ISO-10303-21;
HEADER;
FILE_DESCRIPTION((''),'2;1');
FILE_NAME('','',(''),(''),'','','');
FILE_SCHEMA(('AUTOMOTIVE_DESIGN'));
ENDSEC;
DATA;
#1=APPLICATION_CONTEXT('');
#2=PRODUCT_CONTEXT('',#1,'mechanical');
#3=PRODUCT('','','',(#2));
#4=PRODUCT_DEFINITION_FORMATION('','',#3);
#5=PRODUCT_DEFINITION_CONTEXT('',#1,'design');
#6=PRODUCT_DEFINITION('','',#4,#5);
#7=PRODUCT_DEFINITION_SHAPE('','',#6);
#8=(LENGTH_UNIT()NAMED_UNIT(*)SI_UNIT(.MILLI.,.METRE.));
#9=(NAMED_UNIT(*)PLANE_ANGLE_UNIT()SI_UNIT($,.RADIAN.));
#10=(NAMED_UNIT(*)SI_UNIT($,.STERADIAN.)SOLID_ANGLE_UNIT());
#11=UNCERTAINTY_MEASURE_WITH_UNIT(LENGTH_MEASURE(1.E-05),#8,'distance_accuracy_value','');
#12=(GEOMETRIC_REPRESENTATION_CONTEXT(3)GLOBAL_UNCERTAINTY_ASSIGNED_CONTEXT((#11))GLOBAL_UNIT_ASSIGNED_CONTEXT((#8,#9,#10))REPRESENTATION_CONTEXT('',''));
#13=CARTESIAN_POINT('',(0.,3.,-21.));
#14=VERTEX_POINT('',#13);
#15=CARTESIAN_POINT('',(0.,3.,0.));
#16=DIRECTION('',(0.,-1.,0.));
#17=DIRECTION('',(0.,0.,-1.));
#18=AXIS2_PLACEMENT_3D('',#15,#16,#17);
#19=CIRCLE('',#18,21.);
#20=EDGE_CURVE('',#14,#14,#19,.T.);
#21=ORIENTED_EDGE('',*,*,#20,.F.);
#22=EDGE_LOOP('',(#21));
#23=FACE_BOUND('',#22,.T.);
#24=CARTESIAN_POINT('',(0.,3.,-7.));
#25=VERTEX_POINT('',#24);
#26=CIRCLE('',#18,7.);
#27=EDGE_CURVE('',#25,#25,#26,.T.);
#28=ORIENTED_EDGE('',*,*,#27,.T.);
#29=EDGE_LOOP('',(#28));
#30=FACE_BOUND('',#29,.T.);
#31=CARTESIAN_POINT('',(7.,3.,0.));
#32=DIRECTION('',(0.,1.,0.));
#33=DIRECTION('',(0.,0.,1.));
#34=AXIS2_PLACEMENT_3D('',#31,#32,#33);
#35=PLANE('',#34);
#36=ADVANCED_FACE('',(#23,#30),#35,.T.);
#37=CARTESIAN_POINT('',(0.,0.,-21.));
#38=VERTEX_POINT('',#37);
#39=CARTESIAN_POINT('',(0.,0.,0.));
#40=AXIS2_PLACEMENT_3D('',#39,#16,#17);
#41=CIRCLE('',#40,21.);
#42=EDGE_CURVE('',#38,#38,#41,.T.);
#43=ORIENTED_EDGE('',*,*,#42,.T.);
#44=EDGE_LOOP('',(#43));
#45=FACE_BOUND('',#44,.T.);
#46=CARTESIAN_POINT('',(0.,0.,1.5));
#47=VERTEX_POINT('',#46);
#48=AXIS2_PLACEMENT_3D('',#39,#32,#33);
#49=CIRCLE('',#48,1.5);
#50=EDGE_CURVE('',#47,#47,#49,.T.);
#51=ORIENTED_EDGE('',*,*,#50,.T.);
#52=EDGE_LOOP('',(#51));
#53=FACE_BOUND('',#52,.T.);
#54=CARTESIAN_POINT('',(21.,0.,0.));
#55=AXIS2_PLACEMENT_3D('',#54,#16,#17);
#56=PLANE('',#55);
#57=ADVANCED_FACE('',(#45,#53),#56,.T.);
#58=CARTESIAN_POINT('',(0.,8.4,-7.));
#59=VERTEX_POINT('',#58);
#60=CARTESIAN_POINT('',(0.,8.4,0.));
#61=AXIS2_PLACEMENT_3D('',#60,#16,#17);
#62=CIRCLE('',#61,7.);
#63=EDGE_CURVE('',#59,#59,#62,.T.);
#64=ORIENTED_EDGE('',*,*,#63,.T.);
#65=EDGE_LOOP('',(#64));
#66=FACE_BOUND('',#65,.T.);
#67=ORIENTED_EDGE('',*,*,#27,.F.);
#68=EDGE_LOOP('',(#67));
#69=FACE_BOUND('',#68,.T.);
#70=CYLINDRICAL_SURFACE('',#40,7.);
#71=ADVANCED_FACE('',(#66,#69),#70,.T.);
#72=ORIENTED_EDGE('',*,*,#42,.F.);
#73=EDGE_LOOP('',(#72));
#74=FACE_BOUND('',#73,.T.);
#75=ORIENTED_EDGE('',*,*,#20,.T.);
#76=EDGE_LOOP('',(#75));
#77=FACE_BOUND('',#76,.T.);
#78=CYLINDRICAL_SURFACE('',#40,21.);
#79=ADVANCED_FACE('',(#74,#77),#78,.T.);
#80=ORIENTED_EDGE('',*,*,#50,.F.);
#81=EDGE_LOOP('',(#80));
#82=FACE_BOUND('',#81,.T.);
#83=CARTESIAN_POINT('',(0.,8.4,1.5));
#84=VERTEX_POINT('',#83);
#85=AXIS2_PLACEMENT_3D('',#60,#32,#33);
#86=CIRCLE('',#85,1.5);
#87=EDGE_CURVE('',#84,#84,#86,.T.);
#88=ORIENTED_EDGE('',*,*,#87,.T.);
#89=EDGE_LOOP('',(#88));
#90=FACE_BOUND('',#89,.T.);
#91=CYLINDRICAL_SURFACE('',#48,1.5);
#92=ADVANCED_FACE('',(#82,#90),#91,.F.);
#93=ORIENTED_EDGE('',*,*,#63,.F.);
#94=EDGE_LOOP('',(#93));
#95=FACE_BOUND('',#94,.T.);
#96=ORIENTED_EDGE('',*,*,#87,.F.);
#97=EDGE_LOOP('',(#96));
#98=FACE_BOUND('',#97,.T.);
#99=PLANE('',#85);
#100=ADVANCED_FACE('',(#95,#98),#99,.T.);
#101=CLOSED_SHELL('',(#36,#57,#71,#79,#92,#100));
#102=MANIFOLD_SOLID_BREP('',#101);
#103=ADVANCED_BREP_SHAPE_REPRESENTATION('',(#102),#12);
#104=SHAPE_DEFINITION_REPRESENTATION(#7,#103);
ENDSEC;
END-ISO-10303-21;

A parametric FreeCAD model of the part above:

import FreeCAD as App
import Part
import Sketcher
Q = App.Units.Quantity

doc = App.newDocument("Part")
params = doc.addObject("Spreadsheet::Sheet", "Params")
for row, (alias, value) in enumerate([
    ("sketch1_width", "21 mm"),
    ("sketch1_width2", "14 mm"),
    ("sketch1_height", "3 mm"),
    ("sketch1_height2", "8.4 mm"),
    ("revolution_angle", "360 deg"),
    ("sketch2_diameter", "3 mm"),
], start=1):
    params.set(f"A{row}", alias)
    params.set(f"B{row}", "=" + value)
    params.setAlias(f"B{row}", alias)

body = doc.addObject("PartDesign::Body", "Body")

sketch1 = doc.addObject("Sketcher::SketchObject", "Sketch")
body.addObject(sketch1)
sketch1.AttachmentSupport = (doc.XY_Plane, [""])
sketch1.MapMode = "FlatFace"
sketch1.addGeometry(Part.LineSegment(App.Vector(0, 8.4, 0), App.Vector(0, 0, 0)), False)
sketch1.addGeometry(Part.LineSegment(App.Vector(0, 0, 0), App.Vector(21, 0, 0)), False)
sketch1.addGeometry(Part.LineSegment(App.Vector(21, 0, 0), App.Vector(21, 3, 0)), False)
sketch1.addGeometry(Part.LineSegment(App.Vector(21, 3, 0), App.Vector(7, 3, 0)), False)
sketch1.addGeometry(Part.LineSegment(App.Vector(7, 3, 0), App.Vector(7, 8.4, 0)), False)
sketch1.addGeometry(Part.LineSegment(App.Vector(7, 8.4, 0), App.Vector(0, 8.4, 0)), False)
sketch1.addConstraint(Sketcher.Constraint("Coincident", 0, 2, 1, 1))
sketch1.addConstraint(Sketcher.Constraint("Coincident", 1, 2, 2, 1))
sketch1.addConstraint(Sketcher.Constraint("Coincident", 2, 2, 3, 1))
sketch1.addConstraint(Sketcher.Constraint("Coincident", 3, 2, 4, 1))
sketch1.addConstraint(Sketcher.Constraint("Coincident", 4, 2, 5, 1))
sketch1.addConstraint(Sketcher.Constraint("Coincident", 5, 2, 0, 1))
sketch1.addConstraint(Sketcher.Constraint("Vertical", 0))
sketch1.addConstraint(Sketcher.Constraint("Horizontal", 1))
sketch1.addConstraint(Sketcher.Constraint("Vertical", 2))
sketch1.addConstraint(Sketcher.Constraint("Horizontal", 3))
sketch1.addConstraint(Sketcher.Constraint("Vertical", 4))
sketch1.addConstraint(Sketcher.Constraint("Horizontal", 5))
sketch1.addConstraint(Sketcher.Constraint("Coincident", 0, 2, -1, 1))
sketch1.addConstraint(Sketcher.Constraint("DistanceX", 1, 1, 1, 2, Q("21 mm")))
sketch1.addConstraint(Sketcher.Constraint("DistanceX", 3, 2, 3, 1, Q("14 mm")))
sketch1.addConstraint(Sketcher.Constraint("DistanceY", 2, 1, 2, 2, Q("3 mm")))
sketch1.addConstraint(Sketcher.Constraint("DistanceY", 0, 2, 0, 1, Q("8.4 mm")))
sketch1.setExpression("Constraints[13]", "Params.sketch1_width")
sketch1.setExpression("Constraints[14]", "Params.sketch1_width2")
sketch1.setExpression("Constraints[15]", "Params.sketch1_height")
sketch1.setExpression("Constraints[16]", "Params.sketch1_height2")
revolution = doc.addObject("PartDesign::Revolution", "Revolution")
body.addObject(revolution)
revolution.Profile = sketch1
revolution.ReferenceAxis = (sketch1, ["V_Axis"])
revolution.setExpression("Angle", "Params.revolution_angle")

sketch2 = doc.addObject("Sketcher::SketchObject", "Sketch001")
body.addObject(sketch2)
sketch2.AttachmentSupport = (doc.XZ_Plane, [""])
sketch2.MapMode = "FlatFace"
sketch2.AttachmentOffset = App.Placement(App.Vector(0, 0, -8.4), App.Rotation())
sketch2.addGeometry(Part.Circle(App.Vector(0, 0, 0), App.Vector(0, 0, 1), 1.5), False)
sketch2.addConstraint(Sketcher.Constraint("Coincident", 0, 3, -1, 1))
sketch2.addConstraint(Sketcher.Constraint("Diameter", 0, Q("3 mm")))
sketch2.setExpression("Constraints[1]", "Params.sketch2_diameter")
pocket1 = doc.addObject("PartDesign::Pocket", "Pocket")
body.addObject(pocket1)
pocket1.Profile = sketch2
pocket1.Type = "ThroughAll"
pocket1.Reversed = True

doc.recompute()
